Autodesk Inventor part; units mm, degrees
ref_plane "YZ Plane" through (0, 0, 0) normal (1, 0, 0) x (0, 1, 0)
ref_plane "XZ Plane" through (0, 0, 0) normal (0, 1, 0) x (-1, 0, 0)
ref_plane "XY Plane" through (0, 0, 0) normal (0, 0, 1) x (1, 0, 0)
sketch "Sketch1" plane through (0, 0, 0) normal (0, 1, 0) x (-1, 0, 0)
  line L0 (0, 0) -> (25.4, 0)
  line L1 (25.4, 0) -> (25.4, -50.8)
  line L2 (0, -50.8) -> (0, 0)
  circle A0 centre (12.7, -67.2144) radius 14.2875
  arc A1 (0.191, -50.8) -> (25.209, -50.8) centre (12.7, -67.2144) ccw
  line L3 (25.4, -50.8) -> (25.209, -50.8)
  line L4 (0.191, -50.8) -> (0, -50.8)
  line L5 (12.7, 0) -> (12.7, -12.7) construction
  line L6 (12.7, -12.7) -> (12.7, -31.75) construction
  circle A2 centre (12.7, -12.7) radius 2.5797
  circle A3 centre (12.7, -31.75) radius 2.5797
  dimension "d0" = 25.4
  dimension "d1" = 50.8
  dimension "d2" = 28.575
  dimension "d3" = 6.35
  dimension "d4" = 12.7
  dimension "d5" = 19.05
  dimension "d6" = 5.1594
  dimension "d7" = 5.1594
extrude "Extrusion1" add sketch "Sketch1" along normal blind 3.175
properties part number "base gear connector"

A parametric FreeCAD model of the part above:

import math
import FreeCAD as App
import Part
import Sketcher

V = App.Vector
Q = App.Units.Quantity

doc = App.newDocument("Part")
params = doc.addObject("Spreadsheet::Sheet", "Params")
for row, (alias, value) in enumerate([
    ("sketch1_width", "1 in"),
    ("sketch1_height", "2 in"),
    ("sketch1_diameter", "1.125 in"),
    ("sketch1_diameter2", "0.203126 in"),
    ("sketch1_radius", "0.8125 in"),
    ("pad1_length", "0.125 in"),
], start=1):
    params.set(f"A{row}", alias)
    params.set(f"B{row}", "=" + value)
    params.setAlias(f"B{row}", alias)

body = doc.addObject("PartDesign::Body", "Body")

# Sketch on XZ plane
sketch1 = body.newObject("Sketcher::SketchObject", "Sketch")
sketch1.AttachmentSupport = (doc.getObject("XZ_Plane"), [""])
sketch1.MapMode = "FlatFace"
sketch1.addGeometry([
    Part.LineSegment(V(-25.4, 0, 0), V(0, 0, 0)),  # 0
    Part.LineSegment(V(0, 0, 0), V(0, -50.8, 0)),  # 1
    Part.LineSegment(V(0, -50.8, 0), V(-0.19, -50.8, 0)),  # 2
    Part.ArcOfCircle(Part.Circle(V(-12.7, -67.21, 0), V(0, 0, 1), 20.64), math.radians(127), math.radians(413)),  # 3
    Part.LineSegment(V(-25.21, -50.8, 0), V(-25.4, -50.8, 0)),  # 4
    Part.LineSegment(V(-25.4, -50.8, 0), V(-25.4, 0, 0)),  # 5
    Part.Circle(V(-12.7, -67.21, 0), V(0, 0, 1), 14.29),  # 6
    Part.Circle(V(-12.7, -31.75, 0), V(0, 0, 1), 2.58),  # 7
    Part.Circle(V(-12.7, -12.7, 0), V(0, 0, 1), 2.58),  # 8
], False)
sketch1.addConstraint([
    Sketcher.Constraint("Coincident", 0, 2, 1, 1),
    Sketcher.Constraint("Coincident", 1, 2, 2, 1),
    Sketcher.Constraint("Coincident", 2, 2, 3, 2),
    Sketcher.Constraint("Coincident", 3, 1, 4, 1),
    Sketcher.Constraint("Coincident", 4, 2, 5, 1),
    Sketcher.Constraint("Coincident", 5, 2, 0, 1),
    Sketcher.Constraint("Horizontal", 0),
    Sketcher.Constraint("Vertical", 1),
    Sketcher.Constraint("Horizontal", 2),
    Sketcher.Constraint("Horizontal", 4),
    Sketcher.Constraint("Vertical", 5),
    Sketcher.Constraint("Coincident", 0, 2, -1, 1),
    Sketcher.Constraint("Coincident", 6, 3, 3, 3),
    Sketcher.Constraint("Equal", 7, 8),
    Sketcher.Constraint("Horizontal", 2, 2, 3, 1),
    Sketcher.Constraint("Vertical", 6, 3, 7, 3),
    Sketcher.Constraint("Vertical", 7, 3, 8, 3),
    Sketcher.Constraint("Equal", 2, 4),
    Sketcher.Constraint("DistanceX", 0, 1, 0, 2, Q("1 in")),
    Sketcher.Constraint("DistanceY", 1, 2, 1, 1, Q("2 in")),
    Sketcher.Constraint("Diameter", 6, Q("1.125 in")),
    Sketcher.Constraint("Diameter", 7, Q("0.203126 in")),
    Sketcher.Constraint("DistanceY", 8, 3, -1, 1, Q("0.5 in")),
    Sketcher.Constraint("DistanceY", 7, 3, 8, 3, Q("0.75 in")),
    Sketcher.Constraint("Radius", 3, Q("0.8125 in")),
    Sketcher.Constraint("DistanceX", 2, 2, 2, 1, Q("0.191 mm")),
])
sketch1.setExpression("Constraints[18]", "Params.sketch1_width")
sketch1.setExpression("Constraints[19]", "Params.sketch1_height")
sketch1.setExpression("Constraints[20]", "Params.sketch1_diameter")
sketch1.setExpression("Constraints[21]", "Params.sketch1_diameter2")
sketch1.setExpression("Constraints[24]", "Params.sketch1_radius")
pad1 = body.newObject("PartDesign::Pad", "Pad")
pad1.Profile = sketch1
pad1.setExpression("Length", "Params.pad1_length")
pad1.Reversed = True

doc.recompute()
